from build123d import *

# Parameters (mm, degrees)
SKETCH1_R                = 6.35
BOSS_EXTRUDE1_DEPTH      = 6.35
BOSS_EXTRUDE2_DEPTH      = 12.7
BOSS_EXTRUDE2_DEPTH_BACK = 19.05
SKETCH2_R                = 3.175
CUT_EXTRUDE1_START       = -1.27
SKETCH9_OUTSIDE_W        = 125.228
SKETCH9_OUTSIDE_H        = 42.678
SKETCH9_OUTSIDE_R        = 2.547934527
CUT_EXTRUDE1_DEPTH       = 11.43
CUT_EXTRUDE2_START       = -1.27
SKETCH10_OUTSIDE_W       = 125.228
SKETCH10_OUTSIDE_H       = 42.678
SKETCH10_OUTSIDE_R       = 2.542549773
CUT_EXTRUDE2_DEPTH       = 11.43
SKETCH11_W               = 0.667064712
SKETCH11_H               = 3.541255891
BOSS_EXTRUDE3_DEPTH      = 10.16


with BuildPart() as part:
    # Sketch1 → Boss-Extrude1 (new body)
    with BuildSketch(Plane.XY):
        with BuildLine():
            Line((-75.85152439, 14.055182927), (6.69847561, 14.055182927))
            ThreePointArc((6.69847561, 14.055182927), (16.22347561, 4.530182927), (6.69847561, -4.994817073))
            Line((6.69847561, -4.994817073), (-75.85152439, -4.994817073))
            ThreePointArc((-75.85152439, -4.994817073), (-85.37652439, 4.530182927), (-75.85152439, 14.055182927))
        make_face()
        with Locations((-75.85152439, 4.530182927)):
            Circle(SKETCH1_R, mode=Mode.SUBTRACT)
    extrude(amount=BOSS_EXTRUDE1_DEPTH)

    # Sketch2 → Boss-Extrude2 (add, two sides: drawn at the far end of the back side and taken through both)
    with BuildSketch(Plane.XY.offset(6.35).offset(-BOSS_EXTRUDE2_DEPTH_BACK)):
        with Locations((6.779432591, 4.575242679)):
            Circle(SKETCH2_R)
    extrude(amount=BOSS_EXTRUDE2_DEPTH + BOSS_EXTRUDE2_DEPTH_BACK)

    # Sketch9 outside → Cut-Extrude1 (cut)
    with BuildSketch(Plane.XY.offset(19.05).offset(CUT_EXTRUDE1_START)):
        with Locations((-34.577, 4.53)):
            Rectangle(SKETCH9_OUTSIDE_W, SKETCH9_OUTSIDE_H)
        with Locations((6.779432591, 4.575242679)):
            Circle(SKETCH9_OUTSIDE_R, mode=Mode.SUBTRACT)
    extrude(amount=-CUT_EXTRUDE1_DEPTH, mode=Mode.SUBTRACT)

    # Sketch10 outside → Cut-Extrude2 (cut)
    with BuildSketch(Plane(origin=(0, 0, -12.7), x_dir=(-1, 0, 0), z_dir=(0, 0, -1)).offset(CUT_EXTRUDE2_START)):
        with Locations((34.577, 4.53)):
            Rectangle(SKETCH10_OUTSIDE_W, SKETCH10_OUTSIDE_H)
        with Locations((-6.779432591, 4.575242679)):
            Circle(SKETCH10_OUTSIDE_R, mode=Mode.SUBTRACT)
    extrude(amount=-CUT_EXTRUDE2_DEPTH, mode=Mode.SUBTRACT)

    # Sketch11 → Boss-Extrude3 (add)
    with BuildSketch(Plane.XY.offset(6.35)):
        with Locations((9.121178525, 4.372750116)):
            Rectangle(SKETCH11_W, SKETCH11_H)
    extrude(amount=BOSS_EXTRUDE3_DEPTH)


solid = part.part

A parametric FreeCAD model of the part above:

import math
import FreeCAD as App
import Part
import Sketcher
from FreeCAD import Vector
Q = App.Units.Quantity

doc = App.newDocument("Part")
body = doc.addObject("PartDesign::Body", "Body")

# Sketch on XY plane
sketch1 = body.newObject("Sketcher::SketchObject", "Sketch")
sketch1.AttachmentSupport = (doc.getObject("XY_Plane"), [""])
sketch1.MapMode = "FlatFace"
sketch1.addGeometry(Part.LineSegment(Vector(7, 14, 0), Vector(-76, 14, 0)), False)
sketch1.addGeometry(Part.ArcOfCircle(Part.Circle(Vector(-76, 5, 0), Vector(0, 0, 1), 10), math.radians(90), math.radians(270)), False)
sketch1.addGeometry(Part.LineSegment(Vector(-76, -5, 0), Vector(7, -5, 0)), False)
sketch1.addGeometry(Part.ArcOfCircle(Part.Circle(Vector(7, 5, 0), Vector(0, 0, 1), 10), math.radians(-90), math.radians(90)), False)
sketch1.addGeometry(Part.Circle(Vector(-76, 5, 0), Vector(0, 0, 1), 6), False)
sketch1.addConstraint(Sketcher.Constraint("Tangent", 0, 2, 1, 1))
sketch1.addConstraint(Sketcher.Constraint("Tangent", 1, 2, 2, 1))
sketch1.addConstraint(Sketcher.Constraint("Tangent", 2, 2, 3, 1))
sketch1.addConstraint(Sketcher.Constraint("Tangent", 3, 2, 0, 1))
sketch1.addConstraint(Sketcher.Constraint("Horizontal", 0))
sketch1.addConstraint(Sketcher.Constraint("Horizontal", 2))
sketch1.addConstraint(Sketcher.Constraint("Coincident", 4, 3, 1, 3))
sketch1.addConstraint(Sketcher.Constraint("Diameter", 4, Q("0.5 in")))
sketch1.addConstraint(Sketcher.Constraint("Radius", 1, Q("0.375 in")))
sketch1.addConstraint(Sketcher.Constraint("DistanceX", 0, 2, 0, 1, Q("3.25 in")))
sketch1.addConstraint(Sketcher.Constraint("DistanceX", 1, 3, -1, 1, Q("75.851524 mm")))
sketch1.addConstraint(Sketcher.Constraint("DistanceY", -1, 1, 1, 3, Q("4.530183 mm")))
pad1 = body.newObject("PartDesign::Pad", "Pad")
pad1.Profile = sketch1
pad1.Length = Q("0.25 in")

# Sketch on XY plane
sketch2 = body.newObject("Sketcher::SketchObject", "Sketch001")
sketch2.AttachmentSupport = (doc.getObject("XY_Plane"), [""])
sketch2.MapMode = "FlatFace"
sketch2.AttachmentOffset = App.Placement(Vector(0, 0, 0.25 * 25.4), App.Rotation())
sketch2.addGeometry(Part.Circle(Vector(6.8, 4.6, 0), Vector(0, 0, 1), 3.2), False)
sketch2.addConstraint(Sketcher.Constraint("Diameter", 0, Q("0.25 in")))
sketch2.addConstraint(Sketcher.Constraint("DistanceX", -1, 1, 0, 3, Q("6.779433 mm")))
sketch2.addConstraint(Sketcher.Constraint("DistanceY", -1, 1, 0, 3, Q("4.575243 mm")))
pad2 = body.newObject("PartDesign::Pad", "Pad001")
pad2.Profile = sketch2
pad2.Type = "TwoLengths"
pad2.Length = Q("0.5 in")
pad2.Length2 = Q("0.75 in")

# Sketch on XY plane
sketch3 = body.newObject("Sketcher::SketchObject", "Sketch002")
sketch3.AttachmentSupport = (doc.getObject("XY_Plane"), [""])
sketch3.MapMode = "FlatFace"
sketch3.AttachmentOffset = App.Placement(Vector(0, 0, 0.7 * 25.4), App.Rotation())
sketch3.addGeometry(Part.LineSegment(Vector(-97.2, 25.9, 0), Vector(-97.2, -16.8, 0)), False)
sketch3.addGeometry(Part.LineSegment(Vector(-97.2, -16.8, 0), Vector(28, -16.8, 0)), False)
sketch3.addGeometry(Part.LineSegment(Vector(28, -16.8, 0), Vector(28, 25.9, 0)), False)
sketch3.addGeometry(Part.LineSegment(Vector(28, 25.9, 0), Vector(-97.2, 25.9, 0)), False)
sketch3.addGeometry(Part.Circle(Vector(6.8, 4.6, 0), Vector(0, 0, 1), 2.5), False)
sketch3.addConstraint(Sketcher.Constraint("Coincident", 0, 2, 1, 1))
sketch3.addConstraint(Sketcher.Constraint("Coincident", 1, 2, 2, 1))
sketch3.addConstraint(Sketcher.Constraint("Coincident", 2, 2, 3, 1))
sketch3.addConstraint(Sketcher.Constraint("Coincident", 3, 2, 0, 1))
sketch3.addConstraint(Sketcher.Constraint("Vertical", 0))
sketch3.addConstraint(Sketcher.Constraint("Horizontal", 1))
sketch3.addConstraint(Sketcher.Constraint("Vertical", 2))
sketch3.addConstraint(Sketcher.Constraint("Horizontal", 3))
sketch3.addConstraint(Sketcher.Constraint("Diameter", 4, Q("5.095869 mm")))
sketch3.addConstraint(Sketcher.Constraint("DistanceX", 1, 1, 1, 2, Q("125.228 mm")))
sketch3.addConstraint(Sketcher.Constraint("DistanceY", 0, 2, 0, 1, Q("42.678 mm")))
sketch3.addConstraint(Sketcher.Constraint("DistanceX", 0, 2, -1, 1, Q("97.191 mm")))
sketch3.addConstraint(Sketcher.Constraint("DistanceY", 0, 2, -1, 1, Q("16.809 mm")))
sketch3.addConstraint(Sketcher.Constraint("DistanceX", -1, 1, 4, 3, Q("6.779433 mm")))
sketch3.addConstraint(Sketcher.Constraint("DistanceY", -1, 1, 4, 3, Q("4.575243 mm")))
pocket1 = body.newObject("PartDesign::Pocket", "Pocket")
pocket1.Profile = sketch3
pocket1.Length = Q("0.45 in")

# Sketch on XY plane
sketch4 = body.newObject("Sketcher::SketchObject", "Sketch003")
sketch4.AttachmentSupport = (doc.getObject("XY_Plane"), [""])
sketch4.MapMode = "FlatFace"
sketch4.AttachmentOffset = App.Placement(Vector(0, 0, -0.45 * 25.4), App.Rotation())
sketch4.addGeometry(Part.LineSegment(Vector(28, 25.9, 0), Vector(28, -16.8, 0)), False)
sketch4.addGeometry(Part.LineSegment(Vector(28, -16.8, 0), Vector(-97.2, -16.8, 0)), False)
sketch4.addGeometry(Part.LineSegment(Vector(-97.2, -16.8, 0), Vector(-97.2, 25.9, 0)), False)
sketch4.addGeometry(Part.LineSegment(Vector(-97.2, 25.9, 0), Vector(28, 25.9, 0)), False)
sketch4.addGeometry(Part.Circle(Vector(6.8, 4.6, 0), Vector(0, 0, 1), 2.5), False)
sketch4.addConstraint(Sketcher.Constraint("Coincident", 0, 2, 1, 1))
sketch4.addConstraint(Sketcher.Constraint("Coincident", 1, 2, 2, 1))
sketch4.addConstraint(Sketcher.Constraint("Coincident", 2, 2, 3, 1))
sketch4.addConstraint(Sketcher.Constraint("Coincident", 3, 2, 0, 1))
sketch4.addConstraint(Sketcher.Constraint("Vertical", 0))
sketch4.addConstraint(Sketcher.Constraint("Horizontal", 1))
sketch4.addConstraint(Sketcher.Constraint("Vertical", 2))
sketch4.addConstraint(Sketcher.Constraint("Horizontal", 3))
sketch4.addConstraint(Sketcher.Constraint("Diameter", 4, Q("5.0851 mm")))
sketch4.addConstraint(Sketcher.Constraint("DistanceX", 1, 2, 1, 1, Q("125.228 mm")))
sketch4.addConstraint(Sketcher.Constraint("DistanceY", 0, 2, 0, 1, Q("42.678 mm")))
sketch4.addConstraint(Sketcher.Constraint("DistanceX", -1, 1, 0, 2, Q("28.037 mm")))
sketch4.addConstraint(Sketcher.Constraint("DistanceY", 0, 2, -1, 1, Q("16.809 mm")))
sketch4.addConstraint(Sketcher.Constraint("DistanceX", -1, 1, 4, 3, Q("6.779433 mm")))
sketch4.addConstraint(Sketcher.Constraint("DistanceY", -1, 1, 4, 3, Q("4.575243 mm")))
pocket2 = body.newObject("PartDesign::Pocket", "Pocket001")
pocket2.Profile = sketch4
pocket2.Length = Q("0.45 in")
pocket2.Reversed = True

# Sketch on XY plane
sketch5 = body.newObject("Sketcher::SketchObject", "Sketch004")
sketch5.AttachmentSupport = (doc.getObject("XY_Plane"), [""])
sketch5.MapMode = "FlatFace"
sketch5.AttachmentOffset = App.Placement(Vector(0, 0, 0.25 * 25.4), App.Rotation())
sketch5.addGeometry(Part.LineSegment(Vector(8.8, 6.1, 0), Vector(8.8, 2.6, 0)), False)
sketch5.addGeometry(Part.LineSegment(Vector(8.8, 2.6, 0), Vector(9.5, 2.6, 0)), False)
sketch5.addGeometry(Part.LineSegment(Vector(9.5, 2.6, 0), Vector(9.5, 6.1, 0)), False)
sketch5.addGeometry(Part.LineSegment(Vector(9.5, 6.1, 0), Vector(8.8, 6.1, 0)), False)
sketch5.addConstraint(Sketcher.Constraint("Coincident", 0, 2, 1, 1))
sketch5.addConstraint(Sketcher.Constraint("Coincident", 1, 2, 2, 1))
sketch5.addConstraint(Sketcher.Constraint("Coincident", 2, 2, 3, 1))
sketch5.addConstraint(Sketcher.Constraint("Coincident", 3, 2, 0, 1))
sketch5.addConstraint(Sketcher.Constraint("Vertical", 0))
sketch5.addConstraint(Sketcher.Constraint("Horizontal", 1))
sketch5.addConstraint(Sketcher.Constraint("Vertical", 2))
sketch5.addConstraint(Sketcher.Constraint("Horizontal", 3))
sketch5.addConstraint(Sketcher.Constraint("DistanceX", 1, 1, 1, 2, Q("0.667065 mm")))
sketch5.addConstraint(Sketcher.Constraint("DistanceY", 0, 2, 0, 1, Q("3.541256 mm")))
sketch5.addConstraint(Sketcher.Constraint("DistanceX", -1, 1, 1, 2, Q("9.454711 mm")))
sketch5.addConstraint(Sketcher.Constraint("DistanceY", -1, 1, 2, 2, Q("6.143378 mm")))
pad3 = body.newObject("PartDesign::Pad", "Pad002")
pad3.Profile = sketch5
pad3.Length = Q("0.4 in")

doc.recompute()
